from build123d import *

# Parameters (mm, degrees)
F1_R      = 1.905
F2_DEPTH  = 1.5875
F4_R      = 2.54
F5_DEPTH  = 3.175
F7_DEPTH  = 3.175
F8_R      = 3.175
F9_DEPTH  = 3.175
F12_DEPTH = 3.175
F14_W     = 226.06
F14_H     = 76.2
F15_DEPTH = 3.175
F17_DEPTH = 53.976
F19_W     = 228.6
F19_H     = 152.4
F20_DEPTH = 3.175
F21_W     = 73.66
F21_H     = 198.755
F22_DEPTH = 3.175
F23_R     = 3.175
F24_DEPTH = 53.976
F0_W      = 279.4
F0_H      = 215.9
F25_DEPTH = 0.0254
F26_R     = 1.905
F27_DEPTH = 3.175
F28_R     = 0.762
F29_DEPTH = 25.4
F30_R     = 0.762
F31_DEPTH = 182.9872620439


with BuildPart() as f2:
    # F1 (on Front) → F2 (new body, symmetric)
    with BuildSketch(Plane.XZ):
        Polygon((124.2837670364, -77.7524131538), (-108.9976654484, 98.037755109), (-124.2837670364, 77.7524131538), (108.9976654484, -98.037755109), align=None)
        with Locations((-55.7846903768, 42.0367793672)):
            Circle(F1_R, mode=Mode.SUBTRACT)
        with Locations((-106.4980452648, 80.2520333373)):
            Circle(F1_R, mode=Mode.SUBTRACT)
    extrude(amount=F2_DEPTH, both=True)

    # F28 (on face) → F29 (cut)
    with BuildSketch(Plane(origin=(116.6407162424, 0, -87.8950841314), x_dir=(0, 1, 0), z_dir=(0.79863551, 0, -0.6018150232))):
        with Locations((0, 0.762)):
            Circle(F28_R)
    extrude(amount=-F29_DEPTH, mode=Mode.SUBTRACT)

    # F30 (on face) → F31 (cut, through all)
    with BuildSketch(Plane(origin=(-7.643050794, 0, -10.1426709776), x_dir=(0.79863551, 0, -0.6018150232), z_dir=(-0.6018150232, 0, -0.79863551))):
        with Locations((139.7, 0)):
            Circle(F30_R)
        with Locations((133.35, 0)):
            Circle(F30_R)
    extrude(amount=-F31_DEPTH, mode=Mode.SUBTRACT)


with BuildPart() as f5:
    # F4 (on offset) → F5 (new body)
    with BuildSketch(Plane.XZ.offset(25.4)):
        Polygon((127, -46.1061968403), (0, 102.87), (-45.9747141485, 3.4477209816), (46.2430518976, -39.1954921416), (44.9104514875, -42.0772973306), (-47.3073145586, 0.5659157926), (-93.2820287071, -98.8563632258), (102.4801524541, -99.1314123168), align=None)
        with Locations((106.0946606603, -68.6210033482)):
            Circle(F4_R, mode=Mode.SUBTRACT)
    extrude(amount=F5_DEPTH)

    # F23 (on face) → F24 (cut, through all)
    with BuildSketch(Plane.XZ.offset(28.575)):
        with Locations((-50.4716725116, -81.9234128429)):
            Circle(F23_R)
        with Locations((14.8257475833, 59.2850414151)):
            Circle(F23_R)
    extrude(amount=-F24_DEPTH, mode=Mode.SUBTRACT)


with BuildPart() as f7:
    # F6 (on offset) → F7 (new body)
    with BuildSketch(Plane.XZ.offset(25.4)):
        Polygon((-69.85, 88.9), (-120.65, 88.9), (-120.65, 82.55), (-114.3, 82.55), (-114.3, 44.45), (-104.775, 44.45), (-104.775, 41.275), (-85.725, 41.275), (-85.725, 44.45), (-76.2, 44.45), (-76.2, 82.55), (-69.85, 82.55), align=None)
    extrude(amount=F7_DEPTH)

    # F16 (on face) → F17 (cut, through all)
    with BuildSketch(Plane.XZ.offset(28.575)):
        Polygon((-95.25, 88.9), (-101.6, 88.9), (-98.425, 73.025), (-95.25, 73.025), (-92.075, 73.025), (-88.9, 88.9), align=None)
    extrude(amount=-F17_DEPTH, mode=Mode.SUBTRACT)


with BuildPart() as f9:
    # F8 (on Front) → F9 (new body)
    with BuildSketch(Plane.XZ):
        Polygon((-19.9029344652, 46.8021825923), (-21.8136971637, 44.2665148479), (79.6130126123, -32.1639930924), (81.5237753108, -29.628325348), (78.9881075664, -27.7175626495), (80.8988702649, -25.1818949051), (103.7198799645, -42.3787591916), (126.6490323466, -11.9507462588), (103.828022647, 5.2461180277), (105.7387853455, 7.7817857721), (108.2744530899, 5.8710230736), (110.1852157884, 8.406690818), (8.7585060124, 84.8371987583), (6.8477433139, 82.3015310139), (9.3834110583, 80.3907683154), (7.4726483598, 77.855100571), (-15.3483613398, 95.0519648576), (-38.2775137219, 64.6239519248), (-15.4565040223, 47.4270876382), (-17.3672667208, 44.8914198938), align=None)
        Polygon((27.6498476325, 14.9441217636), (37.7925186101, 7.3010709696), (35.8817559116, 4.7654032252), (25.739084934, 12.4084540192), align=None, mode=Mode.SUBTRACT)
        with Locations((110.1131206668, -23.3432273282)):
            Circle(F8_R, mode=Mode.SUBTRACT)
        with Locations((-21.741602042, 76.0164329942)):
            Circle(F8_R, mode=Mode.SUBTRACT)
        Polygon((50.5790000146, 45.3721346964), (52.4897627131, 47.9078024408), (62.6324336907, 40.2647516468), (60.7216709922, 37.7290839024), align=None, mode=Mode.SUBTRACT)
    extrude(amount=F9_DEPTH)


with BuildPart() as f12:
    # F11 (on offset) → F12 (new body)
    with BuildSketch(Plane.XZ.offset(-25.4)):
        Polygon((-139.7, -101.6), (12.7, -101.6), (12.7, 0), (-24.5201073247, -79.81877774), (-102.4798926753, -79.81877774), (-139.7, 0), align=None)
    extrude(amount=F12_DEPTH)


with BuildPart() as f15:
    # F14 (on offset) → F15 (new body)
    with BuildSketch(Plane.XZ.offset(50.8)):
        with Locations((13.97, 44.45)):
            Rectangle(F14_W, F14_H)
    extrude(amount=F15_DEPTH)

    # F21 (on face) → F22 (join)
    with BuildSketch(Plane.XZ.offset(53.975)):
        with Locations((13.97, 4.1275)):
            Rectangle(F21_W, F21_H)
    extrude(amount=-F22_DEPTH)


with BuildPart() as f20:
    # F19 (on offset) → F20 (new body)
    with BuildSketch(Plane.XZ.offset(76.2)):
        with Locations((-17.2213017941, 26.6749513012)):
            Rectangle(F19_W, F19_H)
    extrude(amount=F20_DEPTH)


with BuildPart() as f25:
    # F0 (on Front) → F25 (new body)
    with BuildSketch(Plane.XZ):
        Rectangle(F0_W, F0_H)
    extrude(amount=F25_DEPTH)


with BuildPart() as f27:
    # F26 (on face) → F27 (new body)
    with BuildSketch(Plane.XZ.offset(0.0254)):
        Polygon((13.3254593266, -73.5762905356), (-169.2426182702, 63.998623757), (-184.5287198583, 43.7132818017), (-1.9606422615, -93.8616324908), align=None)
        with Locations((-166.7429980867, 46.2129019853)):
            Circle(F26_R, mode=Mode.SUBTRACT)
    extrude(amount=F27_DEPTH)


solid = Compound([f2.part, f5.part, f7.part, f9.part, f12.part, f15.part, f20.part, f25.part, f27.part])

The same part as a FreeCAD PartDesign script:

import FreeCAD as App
import Part
import Sketcher
Q = App.Units.Quantity


def add_polygon(sketch, points):
    """Adds a closed chain of lines whose ends are joined by coincident constraints."""
    first, n = sketch.GeometryCount, len(points)
    for a, b in zip(points, points[1:] + points[:1]):
        sketch.addGeometry(Part.LineSegment(App.Vector(*a, 0), App.Vector(*b, 0)), False)
    for i in range(n):
        sketch.addConstraint(Sketcher.Constraint("Coincident", first + i, 2, first + (i + 1) % n, 1))

doc = App.newDocument("Part")
body = doc.addObject("PartDesign::Body", "Body")

# Sketch on XZ plane
sketch1 = doc.addObject("Sketcher::SketchObject", "Sketch")
body.addObject(sketch1)
sketch1.AttachmentSupport = (doc.XZ_Plane, [""])
sketch1.MapMode = "FlatFace"
add_polygon(sketch1, [(124.283767, -77.752413), (-108.997665, 98.037755), (-124.283767, 77.752413), (108.997665, -98.037755)])  # lines 0-3
sketch1.addGeometry(Part.Circle(App.Vector(-55.78469, 42.036779, 0), App.Vector(0, 0, 1), 1.905), False)  # 4
sketch1.addGeometry(Part.Circle(App.Vector(-106.498045, 80.252033, 0), App.Vector(0, 0, 1), 1.905), False)  # 5
sketch1.addConstraint([
    Sketcher.Constraint("Equal", 4, 5),
    Sketcher.Constraint("Symmetric", 0, 2, 2, 2, -1, 1),
    Sketcher.Constraint("Symmetric", 1, 2, 3, 2, -1, 1),
    Sketcher.Constraint("Perpendicular", 0, 1),
    Sketcher.Constraint("Diameter", 4, Q("0.15 in")),
    Sketcher.Constraint("Distance", 1, Q("1 in")),
    Sketcher.Constraint("Angle", 0, Q("143 deg")),
    Sketcher.Constraint("Distance", 0, Q("11.5 in")),
    Sketcher.Constraint("DistanceX", 4, 3, -1, 1, 55.78469),
    Sketcher.Constraint("DistanceY", -1, 1, 4, 3, 42.036779),
    Sketcher.Constraint("DistanceX", 0, 2, 5, 3, 2.49962),
    Sketcher.Constraint("DistanceY", 5, 3, 0, 2, 17.785722),
])
pad1 = doc.addObject("PartDesign::Pad", "Pad")
body.addObject(pad1)
pad1.Profile = sketch1
pad1.Length = Q("0.125 in")
pad1.Midplane = True

# Sketch on an angled plane
sketch2 = doc.addObject("Sketcher::SketchObject", "Sketch001")
body.addObject(sketch2)
sketch2.Placement = App.Placement(App.Vector(116.640716, 0, -87.895084), App.Rotation(App.Vector(0, 1, 0), App.Vector(0.601815023, 0, 0.79863551), App.Vector(0.79863551, 0, -0.601815023), "ZXY"))
sketch2.addGeometry(Part.Circle(App.Vector(0, 0.762, 0), App.Vector(0, 0, 1), 0.762), False)
sketch2.addConstraint([
    Sketcher.Constraint("PointOnObject", 0, 3, -2),
    Sketcher.Constraint("Diameter", 0, Q("0.06 in")),
    Sketcher.Constraint("DistanceY", -1, 1, 0, 3, Q("0.03 in")),
])
pocket1 = doc.addObject("PartDesign::Pocket", "Pocket")
body.addObject(pocket1)
pocket1.Profile = sketch2
pocket1.Length = Q("1 in")

# Sketch on an angled plane
sketch3 = doc.addObject("Sketcher::SketchObject", "Sketch002")
body.addObject(sketch3)
sketch3.Placement = App.Placement(App.Vector(-7.643051, 0, -10.142671), App.Rotation(App.Vector(0.79863551, 0, -0.601815023), App.Vector(0, -1, 0), App.Vector(-0.601815023, 0, -0.79863551), "ZXY"))
sketch3.addGeometry([
    Part.Circle(App.Vector(139.7, 0, 0), App.Vector(0, 0, 1), 0.762),
    Part.Circle(App.Vector(133.35, 0, 0), App.Vector(0, 0, 1), 0.762),
], False)
sketch3.addConstraint([
    Sketcher.Constraint("Equal", 0, 1),
    Sketcher.Constraint("PointOnObject", 0, 3, -1),
    Sketcher.Constraint("PointOnObject", 1, 3, -1),
    Sketcher.Constraint("Diameter", 0, Q("0.06 in")),
    Sketcher.Constraint("DistanceX", -1, 1, 0, 3, Q("5.5 in")),
    Sketcher.Constraint("DistanceX", -1, 1, 1, 3, Q("5.25 in")),
])
pocket2 = doc.addObject("PartDesign::Pocket", "Pocket001")
body.addObject(pocket2)
pocket2.Profile = sketch3
pocket2.Type = "ThroughAll"
body2 = doc.addObject("PartDesign::Body", "Body001")

# Sketch on XZ plane
sketch4 = doc.addObject("Sketcher::SketchObject", "Sketch003")
body2.addObject(sketch4)
sketch4.AttachmentSupport = (doc.getObject("XZ_Plane001"), [""])
sketch4.MapMode = "FlatFace"
sketch4.AttachmentOffset = App.Placement(App.Vector(0, 0, 1 * 25.4), App.Rotation())
add_polygon(sketch4, [(127, -46.106197), (0, 102.87), (-45.974714, 3.447721), (46.243052, -39.195492), (44.910451, -42.077297), (-47.307315, 0.565916), (-93.282029, -98.856363), (102.480152, -99.131412)])  # lines 0-7
sketch4.addGeometry(Part.Circle(App.Vector(106.094661, -68.621003, 0), App.Vector(0, 0, 1), 2.54), False)  # 8
sketch4.addConstraint([
    Sketcher.Constraint("PointOnObject", 0, 2, -2),
    Sketcher.Constraint("Diameter", 8, Q("0.2 in")),
    Sketcher.Constraint("Distance", 2, Q("4 in")),
    Sketcher.Constraint("Distance", 4, Q("4 in")),
    Sketcher.Constraint("DistanceX", -1, 1, 7, 2, Q("5 in")),
    Sketcher.Constraint("Distance", 7, Q("2.3 in")),
    Sketcher.Constraint("DistanceY", -1, 1, 0, 2, Q("4.05 in")),
    Sketcher.Constraint("Distance", 1, Q("4.3125 in")),
    Sketcher.Constraint("Distance", 3, Q("0.125 in")),
    Sketcher.Constraint("Distance", 5, Q("4.3125 in")),
    Sketcher.Constraint("DistanceX", 3, 2, 2, 2, 1.3326),
    Sketcher.Constraint("DistanceX", 4, 2, 1, 2, 1.3326),
    Sketcher.Constraint("DistanceX", 3, 2, 6, 2, 57.569701),
    Sketcher.Constraint("DistanceY", 7, 2, 3, 2, 4.0289),
    Sketcher.Constraint("DistanceX", -1, 1, 8, 3, 106.094661),
    Sketcher.Constraint("DistanceY", -1, 1, 1, 2, 3.447721),
    Sketcher.Constraint("DistanceX", -1, 1, 2, 2, 46.243052),
    Sketcher.Constraint("DistanceX", 5, 2, -1, 1, 93.282029),
    Sketcher.Constraint("DistanceY", 8, 3, 2, 2, 29.425511),
])
pad2 = doc.addObject("PartDesign::Pad", "Pad001")
body2.addObject(pad2)
pad2.Profile = sketch4
pad2.Length = Q("0.125 in")

# Sketch on XZ plane
sketch5 = doc.addObject("Sketcher::SketchObject", "Sketch004")
body2.addObject(sketch5)
sketch5.AttachmentSupport = (doc.getObject("XZ_Plane001"), [""])
sketch5.MapMode = "FlatFace"
sketch5.AttachmentOffset = App.Placement(App.Vector(0, 0, 1.125 * 25.4), App.Rotation())
sketch5.addGeometry([
    Part.Circle(App.Vector(-50.471673, -81.923413, 0), App.Vector(0, 0, 1), 3.175),
    Part.Circle(App.Vector(14.825748, 59.285041, 0), App.Vector(0, 0, 1), 3.175),
], False)
sketch5.addConstraint([
    Sketcher.Constraint("Equal", 0, 1),
    Sketcher.Constraint("Diameter", 0, Q("0.25 in")),
    Sketcher.Constraint("DistanceY", -1, 1, 1, 3, 59.285041),
    Sketcher.Constraint("DistanceX", 0, 3, 1, 3, 65.29742),
    Sketcher.Constraint("DistanceX", 0, 3, -1, 1, 50.471673),
    Sketcher.Constraint("DistanceY", 0, 3, -1, 1, 81.923413),
])
pocket3 = doc.addObject("PartDesign::Pocket", "Pocket002")
body2.addObject(pocket3)
pocket3.Profile = sketch5
pocket3.Type = "ThroughAll"
body3 = doc.addObject("PartDesign::Body", "Body002")

# Sketch on XZ plane
sketch6 = doc.addObject("Sketcher::SketchObject", "Sketch005")
body3.addObject(sketch6)
sketch6.AttachmentSupport = (doc.getObject("XZ_Plane002"), [""])
sketch6.MapMode = "FlatFace"
sketch6.AttachmentOffset = App.Placement(App.Vector(0, 0, 1 * 25.4), App.Rotation())
add_polygon(sketch6, [(-69.85, 88.9), (-120.65, 88.9), (-120.65, 82.55), (-114.3, 82.55), (-114.3, 44.45), (-104.775, 44.45), (-104.775, 41.275), (-85.725, 41.275), (-85.725, 44.45), (-76.2, 44.45), (-76.2, 82.55), (-69.85, 82.55)])  # lines 0-11
sketch6.addConstraint([
    Sketcher.Constraint("Horizontal", 0),
    Sketcher.Constraint("Vertical", 1),
    Sketcher.Constraint("Horizontal", 2),
    Sketcher.Constraint("Vertical", 3),
    Sketcher.Constraint("Horizontal", 4),
    Sketcher.Constraint("Vertical", 5),
    Sketcher.Constraint("Horizontal", 6),
    Sketcher.Constraint("Vertical", 7),
    Sketcher.Constraint("Horizontal", 8),
    Sketcher.Constraint("Vertical", 9),
    Sketcher.Constraint("Horizontal", 10),
    Sketcher.Constraint("Vertical", 11),
    Sketcher.Constraint("Horizontal", 4, 2, 7, 2),
    Sketcher.Constraint("Horizontal", 2, 2, 9, 2),
    Sketcher.Constraint("Equal", 4, 8),
    Sketcher.Constraint("Equal", 2, 10),
    Sketcher.Constraint("Equal", 10, 1),
    Sketcher.Constraint("DistanceX", 0, 2, 0, 1, Q("2 in")),
    Sketcher.Constraint("DistanceY", 3, 2, 3, 1, Q("1.5 in")),
    Sketcher.Constraint("DistanceX", 8, 2, -1, 1, Q("3 in")),
    Sketcher.Constraint("DistanceX", 2, 1, 2, 2, Q("0.25 in")),
    Sketcher.Constraint("DistanceX", 6, 1, 6, 2, Q("0.75 in")),
    Sketcher.Constraint("DistanceY", -1, 1, 0, 2, Q("3.5 in")),
    Sketcher.Constraint("DistanceY", 5, 2, 5, 1, Q("0.125 in")),
])
pad3 = doc.addObject("PartDesign::Pad", "Pad002")
body3.addObject(pad3)
pad3.Profile = sketch6
pad3.Length = Q("0.125 in")

# Sketch on XZ plane
sketch7 = doc.addObject("Sketcher::SketchObject", "Sketch006")
body3.addObject(sketch7)
sketch7.AttachmentSupport = (doc.getObject("XZ_Plane002"), [""])
sketch7.MapMode = "FlatFace"
sketch7.AttachmentOffset = App.Placement(App.Vector(0, 0, 1.125 * 25.4), App.Rotation())
add_polygon(sketch7, [(-101.6, 88.9), (-98.425, 73.025), (-92.075, 73.025), (-88.9, 88.9)])  # lines 0-3
sketch7.addConstraint([
    Sketcher.Constraint("Horizontal", 1),
    Sketcher.Constraint("Horizontal", 3),
    Sketcher.Constraint("Equal", 0, 2),
    Sketcher.Constraint("DistanceX", 3, 2, 3, 1, Q("0.5 in")),
    Sketcher.Constraint("DistanceX", 3, 2, -1, 1, Q("4 in")),
    Sketcher.Constraint("DistanceX", 1, 1, 1, 2, Q("0.25 in")),
    Sketcher.Constraint("DistanceY", -1, 1, 2, 2, Q("3.5 in")),
    Sketcher.Constraint("DistanceY", -1, 1, 0, 2, Q("2.875 in")),
])
pocket4 = doc.addObject("PartDesign::Pocket", "Pocket003")
body3.addObject(pocket4)
pocket4.Profile = sketch7
pocket4.Type = "ThroughAll"
body4 = doc.addObject("PartDesign::Body", "Body003")

# Sketch on XZ plane
sketch8 = doc.addObject("Sketcher::SketchObject", "Sketch007")
body4.addObject(sketch8)
sketch8.AttachmentSupport = (doc.getObject("XZ_Plane003"), [""])
sketch8.MapMode = "FlatFace"
add_polygon(sketch8, [(-19.902934, 46.802183), (-21.813697, 44.266515), (79.613013, -32.163993), (81.523775, -29.628325), (78.988108, -27.717563), (80.89887, -25.181895), (103.71988, -42.378759), (126.649032, -11.950746), (103.828023, 5.246118), (105.738785, 7.781786), (108.274453, 5.871023), (110.185216, 8.406691), (8.758506, 84.837199), (6.847743, 82.301531), (9.383411, 80.390768), (7.472648, 77.855101), (-15.348361, 95.051965), (-38.277514, 64.623952), (-15.456504, 47.427088), (-17.367267, 44.89142)])  # lines 0-19
add_polygon(sketch8, [(25.739085, 12.408454), (27.649848, 14.944122), (37.792519, 7.301071), (35.881756, 4.765403)])  # lines 20-23
sketch8.addGeometry(Part.Circle(App.Vector(110.113121, -23.343227, 0), App.Vector(0, 0, 1), 3.175), False)  # 24
sketch8.addGeometry(Part.Circle(App.Vector(-21.741602, 76.016433, 0), App.Vector(0, 0, 1), 3.175), False)  # 25
add_polygon(sketch8, [(60.721671, 37.729084), (50.579, 45.372135), (52.489763, 47.907802), (62.632434, 40.264752)])  # lines 26-29
sketch8.addConstraint([
    Sketcher.Constraint("Equal", 24, 25),
    Sketcher.Constraint("Perpendicular", 0, 1),
    Sketcher.Constraint("Perpendicular", 1, 2),
    Sketcher.Constraint("Perpendicular", 2, 3),
    Sketcher.Constraint("Perpendicular", 3, 4),
    Sketcher.Constraint("Perpendicular", 4, 5),
    Sketcher.Constraint("Perpendicular", 5, 6),
    Sketcher.Constraint("Perpendicular", 6, 7),
    Sketcher.Constraint("Perpendicular", 7, 8),
    Sketcher.Constraint("Perpendicular", 8, 9),
    Sketcher.Constraint("Perpendicular", 9, 10),
    Sketcher.Constraint("Perpendicular", 10, 11),
    Sketcher.Constraint("Perpendicular", 11, 12),
    Sketcher.Constraint("Perpendicular", 12, 13),
    Sketcher.Constraint("Perpendicular", 13, 14),
    Sketcher.Constraint("Perpendicular", 14, 15),
    Sketcher.Constraint("Perpendicular", 15, 16),
    Sketcher.Constraint("Perpendicular", 16, 17),
    Sketcher.Constraint("Perpendicular", 17, 18),
    Sketcher.Constraint("Perpendicular", 18, 19),
    Sketcher.Constraint("Perpendicular", 19, 20),
    Sketcher.Constraint("Perpendicular", 20, 21),
    Sketcher.Constraint("Perpendicular", 21, 22),
    Sketcher.Constraint("Perpendicular", 22, 23),
    Sketcher.Constraint("Parallel", 23, 26),
    Sketcher.Constraint("Perpendicular", 26, 27),
    Sketcher.Constraint("Perpendicular", 27, 28),
    Sketcher.Constraint("Perpendicular", 28, 29),
    Sketcher.Constraint("Equal", 0, 2),
    Sketcher.Constraint("Equal", 2, 3),
    Sketcher.Constraint("Equal", 3, 4),
    Sketcher.Constraint("Equal", 5, 7),
    Sketcher.Constraint("Equal", 4, 8),
    Sketcher.Constraint("Equal", 8, 9),
    Sketcher.Constraint("Equal", 9, 10),
    Sketcher.Constraint("Equal", 1, 11),
    Sketcher.Constraint("Equal", 10, 12),
    Sketcher.Constraint("Equal", 12, 13),
    Sketcher.Constraint("Equal", 13, 14),
    Sketcher.Constraint("Equal", 7, 15),
    Sketcher.Constraint("Equal", 6, 16),
    Sketcher.Constraint("Equal", 15, 17),
    Sketcher.Constraint("Equal", 19, 20),
    Sketcher.Constraint("Equal", 23, 26),
    Sketcher.Constraint("Equal", 22, 27),
    Sketcher.Constraint("Diameter", 24, Q("0.25 in")),
    Sketcher.Constraint("Distance", 1, Q("5 in")),
    Sketcher.Constraint("Angle", 0, Q("-127 deg")),
    Sketcher.Constraint("Distance", 6, Q("1.5 in")),
    Sketcher.Constraint("Distance", 21, Q("0.5 in")),
    Sketcher.Constraint("Distance", 0, Q("0.125 in")),
    Sketcher.Constraint("Distance", 5, Q("1.125 in")),
    Sketcher.Constraint("DistanceY", -1, 1, 11, 2, 84.837199),
    Sketcher.Constraint("DistanceX", -1, 1, 26, 2, 50.579),
    Sketcher.Constraint("DistanceY", 2, 2, 24, 3, 6.285098),
    Sketcher.Constraint("DistanceX", 7, 2, 24, 3, 6.285098),
    Sketcher.Constraint("DistanceY", 25, 3, 12, 2, 6.285098),
    Sketcher.Constraint("DistanceX", 25, 3, 17, 2, 6.285098),
    Sketcher.Constraint("DistanceY", 20, 2, 18, 2, 29.947298),
    Sketcher.Constraint("DistanceX", 14, 2, 20, 2, 20.177199),
    Sketcher.Constraint("DistanceY", 22, 2, 27, 2, 43.142399),
    Sketcher.Constraint("DistanceX", -1, 1, 24, 3, 110.113121),
])
pad4 = doc.addObject("PartDesign::Pad", "Pad003")
body4.addObject(pad4)
pad4.Profile = sketch8
pad4.Length = Q("0.125 in")
body5 = doc.addObject("PartDesign::Body", "Body004")

# Sketch on XZ plane
sketch9 = doc.addObject("Sketcher::SketchObject", "Sketch008")
body5.addObject(sketch9)
sketch9.AttachmentSupport = (doc.getObject("XZ_Plane004"), [""])
sketch9.MapMode = "FlatFace"
sketch9.AttachmentOffset = App.Placement(App.Vector(0, 0, -1 * 25.4), App.Rotation())
add_polygon(sketch9, [(-139.7, -101.6), (12.7, -101.6), (12.7, 0), (-24.520107, -79.818778), (-102.479893, -79.818778), (-139.7, 0)])  # lines 0-5
sketch9.addConstraint([
    Sketcher.Constraint("Horizontal", 0),
    Sketcher.Constraint("Vertical", 1),
    Sketcher.Constraint("Horizontal", 3),
    Sketcher.Constraint("Vertical", 5),
    Sketcher.Constraint("PointOnObject", 1, 2, -1),
    Sketcher.Constraint("PointOnObject", 4, 2, -1),
    Sketcher.Constraint("Equal", 2, 4),
    Sketcher.Constraint("DistanceX", 0, 1, 0, 2, Q("6 in")),
    Sketcher.Constraint("DistanceY", 1, 1, 1, 2, Q("4 in")),
    Sketcher.Constraint("Angle", 2, Q("-115 deg")),
    Sketcher.Constraint("DistanceX", -1, 1, 0, 2, Q("0.5 in")),
    Sketcher.Constraint("DistanceX", 3, 2, 3, 1, 77.959785),
])
pad5 = doc.addObject("PartDesign::Pad", "Pad004")
body5.addObject(pad5)
pad5.Profile = sketch9
pad5.Length = Q("0.125 in")
body6 = doc.addObject("PartDesign::Body", "Body005")

# Sketch on XZ plane
sketch10 = doc.addObject("Sketcher::SketchObject", "Sketch009")
body6.addObject(sketch10)
sketch10.AttachmentSupport = (doc.getObject("XZ_Plane005"), [""])
sketch10.MapMode = "FlatFace"
sketch10.AttachmentOffset = App.Placement(App.Vector(0, 0, 2 * 25.4), App.Rotation())
add_polygon(sketch10, [(-99.06, 82.55), (-99.06, 6.35), (127, 6.35), (127, 82.55)])  # lines 0-3
sketch10.addConstraint([
    Sketcher.Constraint("Vertical", 0),
    Sketcher.Constraint("Horizontal", 1),
    Sketcher.Constraint("Vertical", 2),
    Sketcher.Constraint("Horizontal", 3),
    Sketcher.Constraint("DistanceY", 0, 2, 0, 1, Q("3 in")),
    Sketcher.Constraint("DistanceX", 1, 1, 1, 2, Q("8.9 in")),
    Sketcher.Constraint("DistanceX", -1, 1, 1, 2, Q("5 in")),
    Sketcher.Constraint("DistanceY", -1, 1, 0, 2, Q("0.25 in")),
])
pad6 = doc.addObject("PartDesign::Pad", "Pad005")
body6.addObject(pad6)
pad6.Profile = sketch10
pad6.Length = Q("0.125 in")

# Sketch on XZ plane
sketch11 = doc.addObject("Sketcher::SketchObject", "Sketch010")
body6.addObject(sketch11)
sketch11.AttachmentSupport = (doc.getObject("XZ_Plane005"), [""])
sketch11.MapMode = "FlatFace"
sketch11.AttachmentOffset = App.Placement(App.Vector(0, 0, 2.125 * 25.4), App.Rotation())
add_polygon(sketch11, [(-22.86, 103.505), (-22.86, -95.25), (50.8, -95.25), (50.8, 103.505)])  # lines 0-3
sketch11.addConstraint([
    Sketcher.Constraint("Vertical", 0),
    Sketcher.Constraint("Horizontal", 1),
    Sketcher.Constraint("Vertical", 2),
    Sketcher.Constraint("Horizontal", 3),
    Sketcher.Constraint("DistanceX", 1, 1, 1, 2, Q("2.9 in")),
    Sketcher.Constraint("DistanceX", -1, 1, 1, 2, Q("2 in")),
    Sketcher.Constraint("DistanceY", 0, 2, 0, 1, Q("7.825 in")),
    Sketcher.Constraint("DistanceY", 0, 2, -1, 1, Q("3.75 in")),
])
pad7 = doc.addObject("PartDesign::Pad", "Pad006")
body6.addObject(pad7)
pad7.Profile = sketch11
pad7.Length = Q("0.125 in")
pad7.Reversed = True
body7 = doc.addObject("PartDesign::Body", "Body006")

# Sketch on XZ plane
sketch12 = doc.addObject("Sketcher::SketchObject", "Sketch011")
body7.addObject(sketch12)
sketch12.AttachmentSupport = (doc.getObject("XZ_Plane006"), [""])
sketch12.MapMode = "FlatFace"
sketch12.AttachmentOffset = App.Placement(App.Vector(0, 0, 3 * 25.4), App.Rotation())
add_polygon(sketch12, [(-131.521302, 102.874951), (-131.521302, -49.525049), (97.078698, -49.525049), (97.078698, 102.874951)])  # lines 0-3
sketch12.addConstraint([
    Sketcher.Constraint("Vertical", 0),
    Sketcher.Constraint("Horizontal", 1),
    Sketcher.Constraint("Vertical", 2),
    Sketcher.Constraint("Horizontal", 3),
    Sketcher.Constraint("DistanceX", 1, 1, 1, 2, Q("9 in")),
    Sketcher.Constraint("DistanceY", 0, 2, 0, 1, Q("6 in")),
    Sketcher.Constraint("DistanceX", 0, 2, -1, 1, 131.521302),
    Sketcher.Constraint("DistanceY", 0, 2, -1, 1, 49.525049),
])
pad8 = doc.addObject("PartDesign::Pad", "Pad007")
body7.addObject(pad8)
pad8.Profile = sketch12
pad8.Length = Q("0.125 in")
body8 = doc.addObject("PartDesign::Body", "Body007")

# Sketch on XZ plane
sketch13 = doc.addObject("Sketcher::SketchObject", "Sketch012")
body8.addObject(sketch13)
sketch13.AttachmentSupport = (doc.getObject("XZ_Plane007"), [""])
sketch13.MapMode = "FlatFace"
add_polygon(sketch13, [(-139.7, 107.95), (-139.7, -107.95), (139.7, -107.95), (139.7, 107.95)])  # lines 0-3
sketch13.addConstraint([
    Sketcher.Constraint("Vertical", 0),
    Sketcher.Constraint("Horizontal", 1),
    Sketcher.Constraint("Vertical", 2),
    Sketcher.Constraint("Horizontal", 3),
    Sketcher.Constraint("Symmetric", 0, 2, 2, 2, -1, 1),
    Sketcher.Constraint("DistanceX", 1, 1, 1, 2, Q("11 in")),
    Sketcher.Constraint("DistanceY", 0, 2, 0, 1, Q("8.5 in")),
])
pad9 = doc.addObject("PartDesign::Pad", "Pad008")
body8.addObject(pad9)
pad9.Profile = sketch13
pad9.Length = Q("0.001 in")
body9 = doc.addObject("PartDesign::Body", "Body008")

# Sketch on XZ plane
sketch14 = doc.addObject("Sketcher::SketchObject", "Sketch013")
body9.addObject(sketch14)
sketch14.AttachmentSupport = (doc.getObject("XZ_Plane008"), [""])
sketch14.MapMode = "FlatFace"
sketch14.AttachmentOffset = App.Placement(App.Vector(0, 0, 0.001 * 25.4), App.Rotation())
add_polygon(sketch14, [(13.325459, -73.576291), (-169.242618, 63.998624), (-184.52872, 43.713282), (-1.960642, -93.861632)])  # lines 0-3
sketch14.addGeometry(Part.Circle(App.Vector(-166.742998, 46.212902, 0), App.Vector(0, 0, 1), 1.905), False)  # 4
sketch14.addConstraint([
    Sketcher.Constraint("Perpendicular", 0, 1),
    Sketcher.Constraint("Perpendicular", 1, 2),
    Sketcher.Constraint("Perpendicular", 2, 3),
    Sketcher.Constraint("Diameter", 4, Q("0.15 in")),
    Sketcher.Constraint("Distance", 0, Q("9 in")),
    Sketcher.Constraint("Distance", 1, Q("1 in")),
    Sketcher.Constraint("Angle", 0, Q("143 deg")),
    Sketcher.Constraint("DistanceX", 4, 3, -1, 1, 166.742998),
    Sketcher.Constraint("DistanceY", -1, 1, 4, 3, 46.212902),
    Sketcher.Constraint("DistanceX", 0, 2, -1, 1, 169.242618),
    Sketcher.Constraint("DistanceY", -1, 1, 1, 2, 43.713282),
])
pad10 = doc.addObject("PartDesign::Pad", "Pad009")
body9.addObject(pad10)
pad10.Profile = sketch14
pad10.Length = Q("0.125 in")

doc.recompute()
